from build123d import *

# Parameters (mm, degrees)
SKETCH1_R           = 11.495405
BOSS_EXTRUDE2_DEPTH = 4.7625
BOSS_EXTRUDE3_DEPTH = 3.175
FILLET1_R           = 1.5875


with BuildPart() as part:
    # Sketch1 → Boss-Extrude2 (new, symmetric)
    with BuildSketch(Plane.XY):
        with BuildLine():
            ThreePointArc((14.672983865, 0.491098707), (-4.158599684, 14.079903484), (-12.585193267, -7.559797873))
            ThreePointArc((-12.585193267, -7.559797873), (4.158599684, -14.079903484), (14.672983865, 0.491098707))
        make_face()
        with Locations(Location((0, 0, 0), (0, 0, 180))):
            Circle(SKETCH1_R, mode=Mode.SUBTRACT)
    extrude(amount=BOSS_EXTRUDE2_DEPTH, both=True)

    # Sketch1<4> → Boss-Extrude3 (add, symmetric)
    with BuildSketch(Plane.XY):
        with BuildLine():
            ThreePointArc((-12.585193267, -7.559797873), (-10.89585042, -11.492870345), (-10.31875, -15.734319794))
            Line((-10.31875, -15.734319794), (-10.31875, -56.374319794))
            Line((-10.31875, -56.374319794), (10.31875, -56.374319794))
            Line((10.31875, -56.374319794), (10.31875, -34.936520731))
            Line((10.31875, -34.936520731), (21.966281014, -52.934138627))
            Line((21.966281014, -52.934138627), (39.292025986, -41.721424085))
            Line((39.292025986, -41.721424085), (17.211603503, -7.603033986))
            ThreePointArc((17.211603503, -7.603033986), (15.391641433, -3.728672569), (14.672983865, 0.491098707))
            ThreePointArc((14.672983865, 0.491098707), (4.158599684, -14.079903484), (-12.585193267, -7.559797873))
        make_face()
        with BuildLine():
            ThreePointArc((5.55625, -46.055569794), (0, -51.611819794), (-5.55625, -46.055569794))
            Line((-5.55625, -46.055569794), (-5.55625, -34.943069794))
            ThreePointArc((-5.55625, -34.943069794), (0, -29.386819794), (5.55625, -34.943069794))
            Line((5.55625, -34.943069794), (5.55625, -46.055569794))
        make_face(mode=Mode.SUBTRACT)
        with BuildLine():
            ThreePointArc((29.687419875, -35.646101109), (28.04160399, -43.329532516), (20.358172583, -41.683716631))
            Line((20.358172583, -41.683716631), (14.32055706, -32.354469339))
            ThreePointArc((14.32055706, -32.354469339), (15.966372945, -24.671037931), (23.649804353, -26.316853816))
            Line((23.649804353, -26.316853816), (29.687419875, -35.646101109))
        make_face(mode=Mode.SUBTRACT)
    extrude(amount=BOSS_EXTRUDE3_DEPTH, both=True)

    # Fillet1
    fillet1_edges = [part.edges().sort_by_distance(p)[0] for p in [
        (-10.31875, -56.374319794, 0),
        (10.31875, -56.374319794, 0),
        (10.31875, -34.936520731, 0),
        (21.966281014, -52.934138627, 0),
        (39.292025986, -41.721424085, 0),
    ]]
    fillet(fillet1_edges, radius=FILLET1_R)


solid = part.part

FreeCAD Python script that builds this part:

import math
import FreeCAD as App
import Part
import Sketcher

V = App.Vector
Q = App.Units.Quantity


def edges_at(feature, points):
    """Names of the edges that pass closest to the given points."""
    edges = feature.Shape.Edges
    near = lambda p: min(range(len(edges)), key=lambda i: edges[i].distToShape(Part.Vertex(*p))[0])
    return sorted({f"Edge{near(p) + 1}" for p in points})

doc = App.newDocument("Part")
params = doc.addObject("Spreadsheet::Sheet", "Params")
for row, (alias, value) in enumerate([
    ("sketch1_radius", "0.578 in"),
    ("pad1_length", "0.375 in"),
    ("sketch2_height", "1.6 in"),
    ("sketch2_radius", "0.625 in"),
    ("sketch2_radius2", "0.578 in"),
    ("sketch2_radius3", "0.21875 in"),
    ("sketch2_length", "1.6 in"),
    ("pad2_length", "0.25 in"),
    ("fillet_radius", "0.0625 in"),
], start=1):
    params.set(f"A{row}", alias)
    params.set(f"B{row}", "=" + value)
    params.setAlias(f"B{row}", alias)

body = doc.addObject("PartDesign::Body", "Body")

# Sketch on XY plane
sketch1 = doc.addObject("Sketcher::SketchObject", "Sketch")
body.addObject(sketch1)
sketch1.AttachmentSupport = (doc.XY_Plane, [""])
sketch1.MapMode = "FlatFace"
sketch1.addGeometry(Part.ArcOfCircle(Part.Circle(V(0, 0, 0), V(0, 0, 1), 15), math.radians(2), math.radians(211)), False)
sketch1.addGeometry(Part.ArcOfCircle(Part.Circle(V(0, 0, 0), V(0, 0, 1), 15), math.radians(-149), math.radians(2)), False)
sketch1.addGeometry(Part.Circle(V(0, 0, 0), V(0, 0, 1), 11), False)
sketch1.addConstraint(Sketcher.Constraint("Tangent", 0, 1, 1, 2))
sketch1.addConstraint(Sketcher.Constraint("Coincident", 1, 1, 0, 2))
sketch1.addConstraint(Sketcher.Constraint("Coincident", 0, 3, -1, 1))
sketch1.addConstraint(Sketcher.Constraint("Coincident", 2, 3, -1, 1))
sketch1.addConstraint(Sketcher.Constraint("Radius", 0, Q("0.578 in")))
sketch1.addConstraint(Sketcher.Constraint("Diameter", 2, Q("22.99081 mm")))
sketch1.addConstraint(Sketcher.Constraint("DistanceY", -1, 1, 0, 1, Q("0.491099 mm")))
sketch1.addConstraint(Sketcher.Constraint("DistanceX", 1, 1, -1, 1, Q("12.585193 mm")))
sketch1.setExpression("Constraints[4]", "Params.sketch1_radius")
pad1 = doc.addObject("PartDesign::Pad", "Pad")
body.addObject(pad1)
pad1.Profile = sketch1
pad1.setExpression("Length", "Params.pad1_length")
pad1.Midplane = True

# Sketch on XY plane
sketch2 = doc.addObject("Sketcher::SketchObject", "Sketch001")
body.addObject(sketch2)
sketch2.AttachmentSupport = (doc.XY_Plane, [""])
sketch2.MapMode = "FlatFace"
sketch2.addGeometry(Part.ArcOfCircle(Part.Circle(V(-26, -16, 0), V(0, 0, 1), 16), math.radians(0), math.radians(31)), False)
sketch2.addGeometry(Part.LineSegment(V(-10, -16, 0), V(-10, -56, 0)), False)
sketch2.addGeometry(Part.LineSegment(V(-10, -56, 0), V(10, -56, 0)), False)
sketch2.addGeometry(Part.LineSegment(V(10, -56, 0), V(10, -35, 0)), False)
sketch2.addGeometry(Part.LineSegment(V(10, -35, 0), V(22, -53, 0)), False)
sketch2.addGeometry(Part.LineSegment(V(22, -53, 0), V(39, -42, 0)), False)
sketch2.addGeometry(Part.LineSegment(V(39, -42, 0), V(17, -8, 0)), False)
sketch2.addGeometry(Part.ArcOfCircle(Part.Circle(V(31, 1, 0), V(0, 0, 1), 16), math.radians(-178), math.radians(-147)), False)
sketch2.addGeometry(Part.ArcOfCircle(Part.Circle(V(0, 0, 0), V(0, 0, 1), 15), math.radians(-149), math.radians(2)), False)
sketch2.addGeometry(Part.LineSegment(V(6, -35, 0), V(6, -46, 0)), False)
sketch2.addGeometry(Part.ArcOfCircle(Part.Circle(V(0, -46, 0), V(0, 0, 1), 6), math.radians(180), math.radians(360)), False)
sketch2.addGeometry(Part.LineSegment(V(-6, -46, 0), V(-6, -35, 0)), False)
sketch2.addGeometry(Part.ArcOfCircle(Part.Circle(V(0, -35, 0), V(0, 0, 1), 6), math.radians(0), math.radians(180)), False)
sketch2.addGeometry(Part.LineSegment(V(24, -26, 0), V(30, -36, 0)), False)
sketch2.addGeometry(Part.ArcOfCircle(Part.Circle(V(25, -39, 0), V(0, 0, 1), 6), math.radians(-147), math.radians(33)), False)
sketch2.addGeometry(Part.LineSegment(V(20, -42, 0), V(14, -32, 0)), False)
sketch2.addGeometry(Part.ArcOfCircle(Part.Circle(V(19, -29, 0), V(0, 0, 1), 6), math.radians(33), math.radians(213)), False)
sketch2.addConstraint(Sketcher.Constraint("Tangent", 0, 1, 1, 1))
sketch2.addConstraint(Sketcher.Constraint("Coincident", 1, 2, 2, 1))
sketch2.addConstraint(Sketcher.Constraint("Coincident", 2, 2, 3, 1))
sketch2.addConstraint(Sketcher.Constraint("Coincident", 3, 2, 4, 1))
sketch2.addConstraint(Sketcher.Constraint("Coincident", 4, 2, 5, 1))
sketch2.addConstraint(Sketcher.Constraint("Coincident", 5, 2, 6, 1))
sketch2.addConstraint(Sketcher.Constraint("Tangent", 6, 2, 7, 2))
sketch2.addConstraint(Sketcher.Constraint("Tangent", 7, 1, 8, 2))
sketch2.addConstraint(Sketcher.Constraint("Tangent", 8, 1, 0, 2))
sketch2.addConstraint(Sketcher.Constraint("Tangent", 9, 2, 10, 2))
sketch2.addConstraint(Sketcher.Constraint("Tangent", 10, 1, 11, 1))
sketch2.addConstraint(Sketcher.Constraint("Tangent", 11, 2, 12, 2))
sketch2.addConstraint(Sketcher.Constraint("Tangent", 12, 1, 9, 1))
sketch2.addConstraint(Sketcher.Constraint("Tangent", 13, 2, 14, 2))
sketch2.addConstraint(Sketcher.Constraint("Tangent", 14, 1, 15, 1))
sketch2.addConstraint(Sketcher.Constraint("Tangent", 15, 2, 16, 2))
sketch2.addConstraint(Sketcher.Constraint("Tangent", 16, 1, 13, 1))
sketch2.addConstraint(Sketcher.Constraint("Vertical", 1))
sketch2.addConstraint(Sketcher.Constraint("Horizontal", 2))
sketch2.addConstraint(Sketcher.Constraint("Vertical", 3))
sketch2.addConstraint(Sketcher.Constraint("Vertical", 9))
sketch2.addConstraint(Sketcher.Constraint("Vertical", 11))
sketch2.addConstraint(Sketcher.Constraint("Coincident", 8, 3, -1, 1))
sketch2.addConstraint(Sketcher.Constraint("Equal", 0, 7))
sketch2.addConstraint(Sketcher.Constraint("Equal", 12, 14))
sketch2.addConstraint(Sketcher.Constraint("Equal", 14, 16))
sketch2.addConstraint(Sketcher.Constraint("PointOnObject", 10, 3, -2))
sketch2.addConstraint(Sketcher.Constraint("Perpendicular", 4, 5))
sketch2.addConstraint(Sketcher.Constraint("Perpendicular", 5, 6))
sketch2.addConstraint(Sketcher.Constraint("Parallel", 6, 13))
sketch2.addConstraint(Sketcher.Constraint("DistanceY", 1, 2, 1, 1, Q("1.6 in")))
sketch2.addConstraint(Sketcher.Constraint("Radius", 0, Q("0.625 in")))
sketch2.addConstraint(Sketcher.Constraint("Radius", 8, Q("0.578 in")))
sketch2.addConstraint(Sketcher.Constraint("Radius", 10, Q("0.21875 in")))
sketch2.addConstraint(Sketcher.Constraint("Distance", 6, Q("1.6 in")))
sketch2.addConstraint(Sketcher.Constraint("DistanceX", 2, 1, 2, 2, Q("0.8125 in")))
sketch2.addConstraint(Sketcher.Constraint("DistanceY", 9, 2, 9, 1, Q("0.4375 in")))
sketch2.addConstraint(Sketcher.Constraint("Distance", 5, Q("0.8125 in")))
sketch2.addConstraint(Sketcher.Constraint("Distance", 13, Q("0.4375 in")))
sketch2.addConstraint(Sketcher.Constraint("DistanceX", 0, 3, -1, 1, Q("1.03125 in")))
sketch2.addConstraint(Sketcher.Constraint("DistanceY", 1, 2, 10, 3, Q("0.40625 in")))
sketch2.addConstraint(Sketcher.Constraint("DistanceY", 3, 1, 3, 2, Q("21.437799 mm")))
sketch2.addConstraint(Sketcher.Constraint("Distance", 4, Q("21.437799 mm")))
sketch2.addConstraint(Sketcher.Constraint("DistanceY", 13, 2, -1, 1, Q("35.646101 mm")))
sketch2.addConstraint(Sketcher.Constraint("DistanceX", 16, 3, 4, 2, Q("2.9811 mm")))
sketch2.setExpression("Constraints[30]", "Params.sketch2_height")
sketch2.setExpression("Constraints[31]", "Params.sketch2_radius")
sketch2.setExpression("Constraints[32]", "Params.sketch2_radius2")
sketch2.setExpression("Constraints[33]", "Params.sketch2_radius3")
sketch2.setExpression("Constraints[34]", "Params.sketch2_length")
pad2 = doc.addObject("PartDesign::Pad", "Pad001")
body.addObject(pad2)
pad2.Profile = sketch2
pad2.setExpression("Length", "Params.pad2_length")
pad2.Midplane = True
doc.recompute()

fillet = doc.addObject("PartDesign::Fillet", "Fillet")
body.addObject(fillet)
fillet.Base = (pad2, edges_at(pad2, [
    (-10.319, -56.374, 0),
    (10.319, -56.374, 0),
    (10.319, -34.937, 0),
    (21.966, -52.934, 0),
    (39.292, -41.721, 0),
]))
fillet.setExpression("Radius", "Params.fillet_radius")

doc.recompute()
